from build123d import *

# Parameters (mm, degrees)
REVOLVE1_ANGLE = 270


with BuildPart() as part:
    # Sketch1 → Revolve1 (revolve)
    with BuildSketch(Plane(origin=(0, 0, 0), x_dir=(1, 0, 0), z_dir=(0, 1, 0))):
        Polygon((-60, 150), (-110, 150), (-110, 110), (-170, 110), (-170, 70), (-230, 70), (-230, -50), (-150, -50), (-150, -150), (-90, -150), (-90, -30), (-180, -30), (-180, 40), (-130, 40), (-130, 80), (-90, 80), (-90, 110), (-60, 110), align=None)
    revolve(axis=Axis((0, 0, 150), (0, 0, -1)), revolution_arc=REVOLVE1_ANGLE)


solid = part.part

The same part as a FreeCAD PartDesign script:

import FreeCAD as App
import Part
import Sketcher
from FreeCAD import Vector
Q = App.Units.Quantity


def add_polygon(sketch, points):
    """Adds a closed chain of lines whose ends are joined by coincident constraints."""
    first, n = sketch.GeometryCount, len(points)
    for a, b in zip(points, points[1:] + points[:1]):
        sketch.addGeometry(Part.LineSegment(App.Vector(*a, 0), App.Vector(*b, 0)), False)
    for i in range(n):
        sketch.addConstraint(Sketcher.Constraint("Coincident", first + i, 2, first + (i + 1) % n, 1))

doc = App.newDocument("Part")
body = doc.addObject("PartDesign::Body", "Body")

# Sketch on XZ plane
sketch1 = body.newObject("Sketcher::SketchObject", "Sketch")
sketch1.AttachmentSupport = (doc.getObject("XZ_Plane"), [""])
sketch1.MapMode = "FlatFace"
add_polygon(sketch1, [(-60, -150), (-110, -150), (-110, -110), (-170, -110), (-170, -70), (-230, -70), (-230, 50), (-150, 50), (-150, 150), (-90, 150), (-90, 30), (-180, 30), (-180, -40), (-130, -40), (-130, -80), (-90, -80), (-90, -110), (-60, -110)])  # lines 0-17
sketch1.addConstraint([
    Sketcher.Constraint("Horizontal", 0),
    Sketcher.Constraint("Vertical", 1),
    Sketcher.Constraint("Horizontal", 2),
    Sketcher.Constraint("Vertical", 3),
    Sketcher.Constraint("Horizontal", 4),
    Sketcher.Constraint("Vertical", 5),
    Sketcher.Constraint("Horizontal", 6),
    Sketcher.Constraint("Vertical", 7),
    Sketcher.Constraint("Horizontal", 8),
    Sketcher.Constraint("Vertical", 9),
    Sketcher.Constraint("Horizontal", 10),
    Sketcher.Constraint("Vertical", 11),
    Sketcher.Constraint("Horizontal", 12),
    Sketcher.Constraint("Vertical", 13),
    Sketcher.Constraint("Horizontal", 14),
    Sketcher.Constraint("Vertical", 15),
    Sketcher.Constraint("Horizontal", 16),
    Sketcher.Constraint("Vertical", 17),
    Sketcher.Constraint("Horizontal", 2, 2, 15, 2),
    Sketcher.Constraint("Vertical", 9, 2, 14, 2),
    Sketcher.Constraint("Equal", 2, 4),
    Sketcher.Constraint("Equal", 4, 8),
    Sketcher.Constraint("Equal", 0, 12),
    Sketcher.Constraint("Equal", 14, 1),
    Sketcher.Constraint("Equal", 1, 3),
    Sketcher.Constraint("Equal", 5, 9),
    Sketcher.Constraint("Equal", 3, 13),
    Sketcher.Constraint("Equal", 16, 15),
    Sketcher.Constraint("DistanceX", 0, 2, 0, 1, Q("50 mm")),
    Sketcher.Constraint("DistanceX", 2, 2, 2, 1, Q("60 mm")),
    Sketcher.Constraint("DistanceX", 6, 1, 6, 2, Q("80 mm")),
    Sketcher.Constraint("DistanceX", 10, 2, 10, 1, Q("90 mm")),
    Sketcher.Constraint("DistanceY", 5, 1, 5, 2, Q("120 mm")),
    Sketcher.Constraint("DistanceY", 7, 1, 7, 2, Q("100 mm")),
    Sketcher.Constraint("DistanceX", 0, 2, -1, 1, Q("110 mm")),
    Sketcher.Constraint("DistanceY", 0, 2, -1, 1, Q("150 mm")),
])
revolution = body.newObject("PartDesign::Revolution", "Revolution")
revolution.Profile = sketch1
revolution.ReferenceAxis = (sketch1, ["V_Axis"])
revolution.Angle = 270
revolution.Reversed = True

doc.recompute()
